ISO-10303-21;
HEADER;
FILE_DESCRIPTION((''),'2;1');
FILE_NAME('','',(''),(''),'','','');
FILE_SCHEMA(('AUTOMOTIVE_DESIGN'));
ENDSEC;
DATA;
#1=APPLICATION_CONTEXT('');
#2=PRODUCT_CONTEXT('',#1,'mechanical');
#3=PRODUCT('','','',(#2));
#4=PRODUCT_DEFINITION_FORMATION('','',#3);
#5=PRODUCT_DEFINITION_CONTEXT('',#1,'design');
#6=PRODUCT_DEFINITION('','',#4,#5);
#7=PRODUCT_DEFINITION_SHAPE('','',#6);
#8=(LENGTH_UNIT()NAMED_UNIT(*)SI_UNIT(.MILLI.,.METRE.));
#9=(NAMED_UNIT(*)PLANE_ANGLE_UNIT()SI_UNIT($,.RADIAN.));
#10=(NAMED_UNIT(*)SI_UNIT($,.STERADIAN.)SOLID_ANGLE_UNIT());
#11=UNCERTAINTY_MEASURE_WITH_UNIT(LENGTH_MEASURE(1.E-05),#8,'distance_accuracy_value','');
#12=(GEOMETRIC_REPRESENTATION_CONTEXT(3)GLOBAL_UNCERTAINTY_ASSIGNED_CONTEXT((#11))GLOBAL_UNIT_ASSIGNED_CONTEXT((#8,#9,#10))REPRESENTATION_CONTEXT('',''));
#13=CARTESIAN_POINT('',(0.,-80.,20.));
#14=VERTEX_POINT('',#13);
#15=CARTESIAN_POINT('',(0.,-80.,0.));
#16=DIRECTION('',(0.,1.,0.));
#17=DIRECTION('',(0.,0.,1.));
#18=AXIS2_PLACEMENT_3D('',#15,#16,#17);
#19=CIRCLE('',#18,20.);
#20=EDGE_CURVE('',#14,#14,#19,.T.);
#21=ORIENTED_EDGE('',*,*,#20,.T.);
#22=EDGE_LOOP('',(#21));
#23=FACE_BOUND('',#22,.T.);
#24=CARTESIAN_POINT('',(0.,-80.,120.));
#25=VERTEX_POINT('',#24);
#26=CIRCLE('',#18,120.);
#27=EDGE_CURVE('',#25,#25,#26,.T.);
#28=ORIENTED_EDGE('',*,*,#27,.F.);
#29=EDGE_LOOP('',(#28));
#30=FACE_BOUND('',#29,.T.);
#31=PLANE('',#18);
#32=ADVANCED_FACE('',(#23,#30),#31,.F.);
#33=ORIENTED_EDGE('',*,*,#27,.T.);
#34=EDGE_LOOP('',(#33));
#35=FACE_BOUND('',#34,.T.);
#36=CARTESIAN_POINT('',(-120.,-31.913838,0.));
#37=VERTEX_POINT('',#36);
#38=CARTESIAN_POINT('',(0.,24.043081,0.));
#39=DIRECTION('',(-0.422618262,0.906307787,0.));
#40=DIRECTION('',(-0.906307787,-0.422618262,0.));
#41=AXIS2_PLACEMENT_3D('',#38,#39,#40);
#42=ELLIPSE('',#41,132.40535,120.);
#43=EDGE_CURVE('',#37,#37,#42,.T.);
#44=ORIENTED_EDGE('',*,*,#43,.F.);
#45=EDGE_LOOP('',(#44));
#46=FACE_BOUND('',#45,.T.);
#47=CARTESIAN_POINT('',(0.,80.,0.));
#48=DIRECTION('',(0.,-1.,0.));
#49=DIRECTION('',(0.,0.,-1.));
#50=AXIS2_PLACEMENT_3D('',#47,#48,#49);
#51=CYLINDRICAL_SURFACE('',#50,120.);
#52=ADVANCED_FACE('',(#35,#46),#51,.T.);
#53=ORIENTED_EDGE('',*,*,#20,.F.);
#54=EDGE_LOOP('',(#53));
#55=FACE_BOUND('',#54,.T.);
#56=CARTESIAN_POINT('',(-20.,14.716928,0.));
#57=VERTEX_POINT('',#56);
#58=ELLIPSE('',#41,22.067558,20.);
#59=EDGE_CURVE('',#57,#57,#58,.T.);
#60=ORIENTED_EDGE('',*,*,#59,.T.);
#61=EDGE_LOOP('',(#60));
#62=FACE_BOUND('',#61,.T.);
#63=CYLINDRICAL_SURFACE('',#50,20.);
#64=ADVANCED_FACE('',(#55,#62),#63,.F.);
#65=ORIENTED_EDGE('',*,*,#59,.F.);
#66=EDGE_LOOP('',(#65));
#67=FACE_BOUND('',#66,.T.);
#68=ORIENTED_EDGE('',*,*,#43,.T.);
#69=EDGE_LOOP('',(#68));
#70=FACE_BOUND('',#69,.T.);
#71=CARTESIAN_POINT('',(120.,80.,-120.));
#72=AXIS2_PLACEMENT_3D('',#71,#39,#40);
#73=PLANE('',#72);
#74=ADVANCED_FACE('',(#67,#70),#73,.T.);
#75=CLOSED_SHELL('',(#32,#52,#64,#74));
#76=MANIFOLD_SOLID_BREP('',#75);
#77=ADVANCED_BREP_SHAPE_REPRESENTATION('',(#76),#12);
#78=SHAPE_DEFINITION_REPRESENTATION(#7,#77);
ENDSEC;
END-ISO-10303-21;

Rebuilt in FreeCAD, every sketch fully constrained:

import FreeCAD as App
import Part
import Sketcher

V = App.Vector
Q = App.Units.Quantity


def add_polygon(sketch, points):
    """Adds a closed chain of lines whose ends are joined by coincident constraints."""
    first, n = sketch.GeometryCount, len(points)
    for a, b in zip(points, points[1:] + points[:1]):
        sketch.addGeometry(Part.LineSegment(App.Vector(*a, 0), App.Vector(*b, 0)), False)
    for i in range(n):
        sketch.addConstraint(Sketcher.Constraint("Coincident", first + i, 2, first + (i + 1) % n, 1))

doc = App.newDocument("Part")
body = doc.addObject("PartDesign::Body", "Body")

# Sketch on XZ plane
sketch1 = body.newObject("Sketcher::SketchObject", "Sketch")
sketch1.AttachmentSupport = (doc.getObject("XZ_Plane"), [""])
sketch1.MapMode = "FlatFace"
sketch1.addGeometry([
    Part.Circle(V(0, 0, 0), V(0, 0, 1), 120),
    Part.Circle(V(0, 0, 0), V(0, 0, 1), 20),
], False)
sketch1.addConstraint([
    Sketcher.Constraint("Coincident", 0, 3, -1, 1),
    Sketcher.Constraint("Coincident", 1, 3, -1, 1),
    Sketcher.Constraint("Diameter", 0, Q("240 mm")),
    Sketcher.Constraint("Diameter", 1, Q("40 mm")),
])
pad1 = body.newObject("PartDesign::Pad", "Pad")
pad1.Profile = sketch1
pad1.Length = 160
pad1.Midplane = True

# Sketch on XY plane
sketch2 = body.newObject("Sketcher::SketchObject", "Sketch001")
sketch2.AttachmentSupport = (doc.getObject("XY_Plane"), [""])
sketch2.MapMode = "FlatFace"
add_polygon(sketch2, [(-120, 80), (-120, -31.913838), (120, 80)])  # lines 0-2
sketch2.addConstraint([
    Sketcher.Constraint("Vertical", 0),
    Sketcher.Constraint("Horizontal", 2),
    Sketcher.Constraint("DistanceX", 2, 2, 2, 1, Q("240 mm")),
    Sketcher.Constraint("Angle", 1, Q("25 deg")),
    Sketcher.Constraint("DistanceX", 0, 2, -1, 1, Q("120 mm")),
    Sketcher.Constraint("DistanceY", -1, 1, 1, 2, Q("80 mm")),
])
pocket1 = body.newObject("PartDesign::Pocket", "Pocket")
pocket1.Profile = sketch2
pocket1.Type = "ThroughAll"
pocket1.Midplane = True

doc.recompute()
